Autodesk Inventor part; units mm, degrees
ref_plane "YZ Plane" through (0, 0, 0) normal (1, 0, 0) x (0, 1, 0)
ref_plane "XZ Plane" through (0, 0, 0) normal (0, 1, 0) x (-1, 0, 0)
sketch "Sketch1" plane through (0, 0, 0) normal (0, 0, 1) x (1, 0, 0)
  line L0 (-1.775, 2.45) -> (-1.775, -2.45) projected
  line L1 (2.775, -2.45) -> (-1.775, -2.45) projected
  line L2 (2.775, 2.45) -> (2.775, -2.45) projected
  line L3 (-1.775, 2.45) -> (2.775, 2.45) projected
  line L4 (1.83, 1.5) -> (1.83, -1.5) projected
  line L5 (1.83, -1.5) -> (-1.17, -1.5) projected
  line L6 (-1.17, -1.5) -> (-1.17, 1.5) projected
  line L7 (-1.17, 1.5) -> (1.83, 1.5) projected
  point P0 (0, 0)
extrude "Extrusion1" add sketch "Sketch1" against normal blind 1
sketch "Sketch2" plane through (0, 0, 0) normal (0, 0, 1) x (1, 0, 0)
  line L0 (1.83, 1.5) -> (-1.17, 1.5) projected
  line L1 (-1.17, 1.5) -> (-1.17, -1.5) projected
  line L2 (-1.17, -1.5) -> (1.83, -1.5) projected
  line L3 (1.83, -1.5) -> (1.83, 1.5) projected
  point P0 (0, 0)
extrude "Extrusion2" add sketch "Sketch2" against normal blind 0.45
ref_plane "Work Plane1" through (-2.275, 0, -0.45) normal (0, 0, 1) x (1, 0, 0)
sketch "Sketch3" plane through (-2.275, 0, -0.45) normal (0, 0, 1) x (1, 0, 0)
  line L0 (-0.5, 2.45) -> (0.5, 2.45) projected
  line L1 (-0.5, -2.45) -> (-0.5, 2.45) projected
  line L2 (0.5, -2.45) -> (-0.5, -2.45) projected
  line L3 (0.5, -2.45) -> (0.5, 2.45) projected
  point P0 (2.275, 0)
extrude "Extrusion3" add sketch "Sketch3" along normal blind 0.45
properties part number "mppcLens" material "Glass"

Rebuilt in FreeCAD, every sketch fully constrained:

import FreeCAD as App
import Part
import Sketcher
Q = App.Units.Quantity


def add_polygon(sketch, points):
    """Adds a closed chain of lines whose ends are joined by coincident constraints."""
    first, n = sketch.GeometryCount, len(points)
    for a, b in zip(points, points[1:] + points[:1]):
        sketch.addGeometry(Part.LineSegment(App.Vector(*a, 0), App.Vector(*b, 0)), False)
    for i in range(n):
        sketch.addConstraint(Sketcher.Constraint("Coincident", first + i, 2, first + (i + 1) % n, 1))

doc = App.newDocument("Part")
params = doc.addObject("Spreadsheet::Sheet", "Params")
for row, (alias, value) in enumerate([
    ("sketch1_width", "3 mm"),
    ("sketch1_height", "4.9 mm"),
    ("sketch1_width2", "4.55 mm"),
    ("pad1_length", "1 mm"),
    ("sketch2_width", "3 mm"),
    ("pad2_length", "0.45 mm"),
    ("sketch3_width", "1 mm"),
    ("sketch3_height", "4.9 mm"),
    ("pad3_length", "0.45 mm"),
], start=1):
    params.set(f"A{row}", alias)
    params.set(f"B{row}", "=" + value)
    params.setAlias(f"B{row}", alias)

body = doc.addObject("PartDesign::Body", "Body")

sketch1 = body.newObject("Sketcher::SketchObject", "Sketch")
sketch1.AttachmentSupport = (doc.getObject("XY_Plane"), [""])
sketch1.MapMode = "FlatFace"
add_polygon(sketch1, [(2.8, 2.5), (-1.8, 2.5), (-1.8, -2.5), (2.8, -2.5)])
add_polygon(sketch1, [(-1.2, 1.5), (1.8, 1.5), (1.8, -1.5), (-1.2, -1.5)])
sketch1.addConstraint([
    Sketcher.Constraint("Horizontal", 0),
    Sketcher.Constraint("Vertical", 1),
    Sketcher.Constraint("Horizontal", 2),
    Sketcher.Constraint("Vertical", 3),
    Sketcher.Constraint("Horizontal", 4),
    Sketcher.Constraint("Vertical", 5),
    Sketcher.Constraint("Horizontal", 6),
    Sketcher.Constraint("Vertical", 7),
    Sketcher.Constraint("Equal", 6, 5),
    Sketcher.Constraint("DistanceX", 4, 1, 4, 2, Q("3 mm")),
    Sketcher.Constraint("DistanceY", 1, 2, 1, 1, Q("4.9 mm")),
    Sketcher.Constraint("DistanceX", 0, 2, 0, 1, Q("4.55 mm")),
    Sketcher.Constraint("DistanceY", -1, 1, 4, 2, Q("1.5 mm")),
    Sketcher.Constraint("DistanceY", -1, 1, 0, 2, Q("2.45 mm")),
    Sketcher.Constraint("DistanceX", -1, 1, 4, 2, Q("1.83 mm")),
    Sketcher.Constraint("DistanceX", 0, 2, -1, 1, Q("1.775 mm")),
])
sketch1.setExpression("Constraints[17]", "Params.sketch1_width")
sketch1.setExpression("Constraints[18]", "Params.sketch1_height")
sketch1.setExpression("Constraints[19]", "Params.sketch1_width2")
pad1 = body.newObject("PartDesign::Pad", "Pad")
pad1.Profile = sketch1
pad1.setExpression("Length", "Params.pad1_length")
pad1.Reversed = True

sketch2 = body.newObject("Sketcher::SketchObject", "Sketch001")
sketch2.AttachmentSupport = (doc.getObject("XY_Plane"), [""])
sketch2.MapMode = "FlatFace"
add_polygon(sketch2, [(1.8, -1.5), (1.8, 1.5), (-1.2, 1.5), (-1.2, -1.5)])
sketch2.addConstraint([
    Sketcher.Constraint("Vertical", 0),
    Sketcher.Constraint("Horizontal", 1),
    Sketcher.Constraint("Vertical", 2),
    Sketcher.Constraint("Horizontal", 3),
    Sketcher.Constraint("Equal", 3, 0),
    Sketcher.Constraint("DistanceX", 1, 2, 1, 1, Q("3 mm")),
    Sketcher.Constraint("DistanceY", -1, 1, 0, 2, Q("1.5 mm")),
    Sketcher.Constraint("DistanceX", -1, 1, 0, 2, Q("1.83 mm")),
])
sketch2.setExpression("Constraints[9]", "Params.sketch2_width")
pad2 = body.newObject("PartDesign::Pad", "Pad001")
pad2.Profile = sketch2
pad2.setExpression("Length", "Params.pad2_length")
pad2.Reversed = True

sketch3 = body.newObject("Sketcher::SketchObject", "Sketch002")
sketch3.AttachmentSupport = (doc.getObject("XY_Plane"), [""])
sketch3.MapMode = "FlatFace"
sketch3.AttachmentOffset = App.Placement(App.Vector(0, 0, -0.45), App.Rotation())
add_polygon(sketch3, [(-1.8, 2.5), (-2.8, 2.5), (-2.8, -2.5), (-1.8, -2.5)])
sketch3.addConstraint([
    Sketcher.Constraint("Horizontal", 0),
    Sketcher.Constraint("Vertical", 1),
    Sketcher.Constraint("Horizontal", 2),
    Sketcher.Constraint("Vertical", 3),
    Sketcher.Constraint("DistanceX", 0, 2, 0, 1, Q("1 mm")),
    Sketcher.Constraint("DistanceY", 1, 2, 1, 1, Q("4.9 mm")),
    Sketcher.Constraint("DistanceY", -1, 1, 0, 2, Q("2.45 mm")),
    Sketcher.Constraint("DistanceX", 0, 2, -1, 1, Q("2.775 mm")),
])
sketch3.setExpression("Constraints[8]", "Params.sketch3_width")
sketch3.setExpression("Constraints[9]", "Params.sketch3_height")
pad3 = body.newObject("PartDesign::Pad", "Pad002")
pad3.Profile = sketch3
pad3.setExpression("Length", "Params.pad3_length")

doc.recompute()
